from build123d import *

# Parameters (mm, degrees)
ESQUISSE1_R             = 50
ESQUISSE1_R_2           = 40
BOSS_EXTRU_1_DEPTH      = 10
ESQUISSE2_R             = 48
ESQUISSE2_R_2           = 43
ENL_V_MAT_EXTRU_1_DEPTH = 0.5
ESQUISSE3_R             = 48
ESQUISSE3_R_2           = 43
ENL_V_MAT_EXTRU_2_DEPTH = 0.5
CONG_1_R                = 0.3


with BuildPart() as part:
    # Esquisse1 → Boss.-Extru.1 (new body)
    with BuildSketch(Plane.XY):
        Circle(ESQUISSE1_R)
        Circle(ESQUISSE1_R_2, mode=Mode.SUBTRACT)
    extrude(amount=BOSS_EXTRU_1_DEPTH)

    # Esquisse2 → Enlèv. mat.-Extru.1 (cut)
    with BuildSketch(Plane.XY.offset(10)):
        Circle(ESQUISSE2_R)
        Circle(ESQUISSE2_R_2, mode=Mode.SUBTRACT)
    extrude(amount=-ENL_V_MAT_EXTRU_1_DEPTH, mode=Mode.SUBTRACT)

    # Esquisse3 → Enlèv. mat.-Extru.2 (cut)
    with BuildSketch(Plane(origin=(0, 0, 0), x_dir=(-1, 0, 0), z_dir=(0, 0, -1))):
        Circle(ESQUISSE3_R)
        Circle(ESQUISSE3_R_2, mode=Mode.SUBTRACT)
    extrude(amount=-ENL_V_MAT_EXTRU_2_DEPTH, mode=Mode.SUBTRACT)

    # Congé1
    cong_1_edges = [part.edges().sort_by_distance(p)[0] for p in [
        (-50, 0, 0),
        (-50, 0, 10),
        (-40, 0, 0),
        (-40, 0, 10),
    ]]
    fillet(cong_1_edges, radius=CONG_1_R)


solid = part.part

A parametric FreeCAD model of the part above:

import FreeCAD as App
import Part
import Sketcher
from FreeCAD import Vector


def edges_at(feature, points):
    """Names of the edges that pass closest to the given points."""
    edges = feature.Shape.Edges
    near = lambda p: min(range(len(edges)), key=lambda i: edges[i].distToShape(Part.Vertex(*p))[0])
    return sorted({f"Edge{near(p) + 1}" for p in points})

doc = App.newDocument("Part")
body = doc.addObject("PartDesign::Body", "Body")

sketch1 = body.newObject("Sketcher::SketchObject", "Sketch")
sketch1.AttachmentSupport = (doc.getObject("XY_Plane"), [""])
sketch1.MapMode = "FlatFace"
sketch1.addGeometry([
    Part.Circle(Vector(0, 0, 0), Vector(0, 0, 1), 50),
    Part.Circle(Vector(0, 0, 0), Vector(0, 0, 1), 40),
], False)
sketch1.addConstraint([
    Sketcher.Constraint("Coincident", 0, 3, -1, 1),
    Sketcher.Constraint("Coincident", 1, 3, -1, 1),
    Sketcher.Constraint("Diameter", 0, 100.0),
    Sketcher.Constraint("Diameter", 1, 80.0),
])
pad1 = body.newObject("PartDesign::Pad", "Pad")
pad1.Profile = sketch1
pad1.Length = 10

sketch2 = body.newObject("Sketcher::SketchObject", "Sketch001")
sketch2.AttachmentSupport = (doc.getObject("XY_Plane"), [""])
sketch2.MapMode = "FlatFace"
sketch2.AttachmentOffset = App.Placement(Vector(0, 0, 10), App.Rotation())
sketch2.addGeometry([
    Part.Circle(Vector(0, 0, 0), Vector(0, 0, 1), 48),
    Part.Circle(Vector(0, 0, 0), Vector(0, 0, 1), 43),
], False)
sketch2.addConstraint([
    Sketcher.Constraint("Coincident", 0, 3, -1, 1),
    Sketcher.Constraint("Coincident", 1, 3, -1, 1),
    Sketcher.Constraint("Diameter", 0, 96.0),
    Sketcher.Constraint("Diameter", 1, 86.0),
])
pocket1 = body.newObject("PartDesign::Pocket", "Pocket")
pocket1.Profile = sketch2
pocket1.Length = 0.5

sketch3 = body.newObject("Sketcher::SketchObject", "Sketch002")
sketch3.AttachmentSupport = (doc.getObject("XY_Plane"), [""])
sketch3.MapMode = "FlatFace"
sketch3.addGeometry([
    Part.Circle(Vector(0, 0, 0), Vector(0, 0, 1), 48),
    Part.Circle(Vector(0, 0, 0), Vector(0, 0, 1), 43),
], False)
sketch3.addConstraint([
    Sketcher.Constraint("Coincident", 0, 3, -1, 1),
    Sketcher.Constraint("Coincident", 1, 3, -1, 1),
    Sketcher.Constraint("Diameter", 0, 96.0),
    Sketcher.Constraint("Diameter", 1, 86.0),
])
pocket2 = body.newObject("PartDesign::Pocket", "Pocket001")
pocket2.Profile = sketch3
pocket2.Length = 0.5
pocket2.Reversed = True
doc.recompute()

fillet = body.newObject("PartDesign::Fillet", "Fillet")
fillet.Base = (pocket2, edges_at(pocket2, [
    (-50, 0, 0),
    (-50, 0, 10),
    (-40, 0, 0),
    (-40, 0, 10),
]))
fillet.Radius = 0.3

doc.recompute()
